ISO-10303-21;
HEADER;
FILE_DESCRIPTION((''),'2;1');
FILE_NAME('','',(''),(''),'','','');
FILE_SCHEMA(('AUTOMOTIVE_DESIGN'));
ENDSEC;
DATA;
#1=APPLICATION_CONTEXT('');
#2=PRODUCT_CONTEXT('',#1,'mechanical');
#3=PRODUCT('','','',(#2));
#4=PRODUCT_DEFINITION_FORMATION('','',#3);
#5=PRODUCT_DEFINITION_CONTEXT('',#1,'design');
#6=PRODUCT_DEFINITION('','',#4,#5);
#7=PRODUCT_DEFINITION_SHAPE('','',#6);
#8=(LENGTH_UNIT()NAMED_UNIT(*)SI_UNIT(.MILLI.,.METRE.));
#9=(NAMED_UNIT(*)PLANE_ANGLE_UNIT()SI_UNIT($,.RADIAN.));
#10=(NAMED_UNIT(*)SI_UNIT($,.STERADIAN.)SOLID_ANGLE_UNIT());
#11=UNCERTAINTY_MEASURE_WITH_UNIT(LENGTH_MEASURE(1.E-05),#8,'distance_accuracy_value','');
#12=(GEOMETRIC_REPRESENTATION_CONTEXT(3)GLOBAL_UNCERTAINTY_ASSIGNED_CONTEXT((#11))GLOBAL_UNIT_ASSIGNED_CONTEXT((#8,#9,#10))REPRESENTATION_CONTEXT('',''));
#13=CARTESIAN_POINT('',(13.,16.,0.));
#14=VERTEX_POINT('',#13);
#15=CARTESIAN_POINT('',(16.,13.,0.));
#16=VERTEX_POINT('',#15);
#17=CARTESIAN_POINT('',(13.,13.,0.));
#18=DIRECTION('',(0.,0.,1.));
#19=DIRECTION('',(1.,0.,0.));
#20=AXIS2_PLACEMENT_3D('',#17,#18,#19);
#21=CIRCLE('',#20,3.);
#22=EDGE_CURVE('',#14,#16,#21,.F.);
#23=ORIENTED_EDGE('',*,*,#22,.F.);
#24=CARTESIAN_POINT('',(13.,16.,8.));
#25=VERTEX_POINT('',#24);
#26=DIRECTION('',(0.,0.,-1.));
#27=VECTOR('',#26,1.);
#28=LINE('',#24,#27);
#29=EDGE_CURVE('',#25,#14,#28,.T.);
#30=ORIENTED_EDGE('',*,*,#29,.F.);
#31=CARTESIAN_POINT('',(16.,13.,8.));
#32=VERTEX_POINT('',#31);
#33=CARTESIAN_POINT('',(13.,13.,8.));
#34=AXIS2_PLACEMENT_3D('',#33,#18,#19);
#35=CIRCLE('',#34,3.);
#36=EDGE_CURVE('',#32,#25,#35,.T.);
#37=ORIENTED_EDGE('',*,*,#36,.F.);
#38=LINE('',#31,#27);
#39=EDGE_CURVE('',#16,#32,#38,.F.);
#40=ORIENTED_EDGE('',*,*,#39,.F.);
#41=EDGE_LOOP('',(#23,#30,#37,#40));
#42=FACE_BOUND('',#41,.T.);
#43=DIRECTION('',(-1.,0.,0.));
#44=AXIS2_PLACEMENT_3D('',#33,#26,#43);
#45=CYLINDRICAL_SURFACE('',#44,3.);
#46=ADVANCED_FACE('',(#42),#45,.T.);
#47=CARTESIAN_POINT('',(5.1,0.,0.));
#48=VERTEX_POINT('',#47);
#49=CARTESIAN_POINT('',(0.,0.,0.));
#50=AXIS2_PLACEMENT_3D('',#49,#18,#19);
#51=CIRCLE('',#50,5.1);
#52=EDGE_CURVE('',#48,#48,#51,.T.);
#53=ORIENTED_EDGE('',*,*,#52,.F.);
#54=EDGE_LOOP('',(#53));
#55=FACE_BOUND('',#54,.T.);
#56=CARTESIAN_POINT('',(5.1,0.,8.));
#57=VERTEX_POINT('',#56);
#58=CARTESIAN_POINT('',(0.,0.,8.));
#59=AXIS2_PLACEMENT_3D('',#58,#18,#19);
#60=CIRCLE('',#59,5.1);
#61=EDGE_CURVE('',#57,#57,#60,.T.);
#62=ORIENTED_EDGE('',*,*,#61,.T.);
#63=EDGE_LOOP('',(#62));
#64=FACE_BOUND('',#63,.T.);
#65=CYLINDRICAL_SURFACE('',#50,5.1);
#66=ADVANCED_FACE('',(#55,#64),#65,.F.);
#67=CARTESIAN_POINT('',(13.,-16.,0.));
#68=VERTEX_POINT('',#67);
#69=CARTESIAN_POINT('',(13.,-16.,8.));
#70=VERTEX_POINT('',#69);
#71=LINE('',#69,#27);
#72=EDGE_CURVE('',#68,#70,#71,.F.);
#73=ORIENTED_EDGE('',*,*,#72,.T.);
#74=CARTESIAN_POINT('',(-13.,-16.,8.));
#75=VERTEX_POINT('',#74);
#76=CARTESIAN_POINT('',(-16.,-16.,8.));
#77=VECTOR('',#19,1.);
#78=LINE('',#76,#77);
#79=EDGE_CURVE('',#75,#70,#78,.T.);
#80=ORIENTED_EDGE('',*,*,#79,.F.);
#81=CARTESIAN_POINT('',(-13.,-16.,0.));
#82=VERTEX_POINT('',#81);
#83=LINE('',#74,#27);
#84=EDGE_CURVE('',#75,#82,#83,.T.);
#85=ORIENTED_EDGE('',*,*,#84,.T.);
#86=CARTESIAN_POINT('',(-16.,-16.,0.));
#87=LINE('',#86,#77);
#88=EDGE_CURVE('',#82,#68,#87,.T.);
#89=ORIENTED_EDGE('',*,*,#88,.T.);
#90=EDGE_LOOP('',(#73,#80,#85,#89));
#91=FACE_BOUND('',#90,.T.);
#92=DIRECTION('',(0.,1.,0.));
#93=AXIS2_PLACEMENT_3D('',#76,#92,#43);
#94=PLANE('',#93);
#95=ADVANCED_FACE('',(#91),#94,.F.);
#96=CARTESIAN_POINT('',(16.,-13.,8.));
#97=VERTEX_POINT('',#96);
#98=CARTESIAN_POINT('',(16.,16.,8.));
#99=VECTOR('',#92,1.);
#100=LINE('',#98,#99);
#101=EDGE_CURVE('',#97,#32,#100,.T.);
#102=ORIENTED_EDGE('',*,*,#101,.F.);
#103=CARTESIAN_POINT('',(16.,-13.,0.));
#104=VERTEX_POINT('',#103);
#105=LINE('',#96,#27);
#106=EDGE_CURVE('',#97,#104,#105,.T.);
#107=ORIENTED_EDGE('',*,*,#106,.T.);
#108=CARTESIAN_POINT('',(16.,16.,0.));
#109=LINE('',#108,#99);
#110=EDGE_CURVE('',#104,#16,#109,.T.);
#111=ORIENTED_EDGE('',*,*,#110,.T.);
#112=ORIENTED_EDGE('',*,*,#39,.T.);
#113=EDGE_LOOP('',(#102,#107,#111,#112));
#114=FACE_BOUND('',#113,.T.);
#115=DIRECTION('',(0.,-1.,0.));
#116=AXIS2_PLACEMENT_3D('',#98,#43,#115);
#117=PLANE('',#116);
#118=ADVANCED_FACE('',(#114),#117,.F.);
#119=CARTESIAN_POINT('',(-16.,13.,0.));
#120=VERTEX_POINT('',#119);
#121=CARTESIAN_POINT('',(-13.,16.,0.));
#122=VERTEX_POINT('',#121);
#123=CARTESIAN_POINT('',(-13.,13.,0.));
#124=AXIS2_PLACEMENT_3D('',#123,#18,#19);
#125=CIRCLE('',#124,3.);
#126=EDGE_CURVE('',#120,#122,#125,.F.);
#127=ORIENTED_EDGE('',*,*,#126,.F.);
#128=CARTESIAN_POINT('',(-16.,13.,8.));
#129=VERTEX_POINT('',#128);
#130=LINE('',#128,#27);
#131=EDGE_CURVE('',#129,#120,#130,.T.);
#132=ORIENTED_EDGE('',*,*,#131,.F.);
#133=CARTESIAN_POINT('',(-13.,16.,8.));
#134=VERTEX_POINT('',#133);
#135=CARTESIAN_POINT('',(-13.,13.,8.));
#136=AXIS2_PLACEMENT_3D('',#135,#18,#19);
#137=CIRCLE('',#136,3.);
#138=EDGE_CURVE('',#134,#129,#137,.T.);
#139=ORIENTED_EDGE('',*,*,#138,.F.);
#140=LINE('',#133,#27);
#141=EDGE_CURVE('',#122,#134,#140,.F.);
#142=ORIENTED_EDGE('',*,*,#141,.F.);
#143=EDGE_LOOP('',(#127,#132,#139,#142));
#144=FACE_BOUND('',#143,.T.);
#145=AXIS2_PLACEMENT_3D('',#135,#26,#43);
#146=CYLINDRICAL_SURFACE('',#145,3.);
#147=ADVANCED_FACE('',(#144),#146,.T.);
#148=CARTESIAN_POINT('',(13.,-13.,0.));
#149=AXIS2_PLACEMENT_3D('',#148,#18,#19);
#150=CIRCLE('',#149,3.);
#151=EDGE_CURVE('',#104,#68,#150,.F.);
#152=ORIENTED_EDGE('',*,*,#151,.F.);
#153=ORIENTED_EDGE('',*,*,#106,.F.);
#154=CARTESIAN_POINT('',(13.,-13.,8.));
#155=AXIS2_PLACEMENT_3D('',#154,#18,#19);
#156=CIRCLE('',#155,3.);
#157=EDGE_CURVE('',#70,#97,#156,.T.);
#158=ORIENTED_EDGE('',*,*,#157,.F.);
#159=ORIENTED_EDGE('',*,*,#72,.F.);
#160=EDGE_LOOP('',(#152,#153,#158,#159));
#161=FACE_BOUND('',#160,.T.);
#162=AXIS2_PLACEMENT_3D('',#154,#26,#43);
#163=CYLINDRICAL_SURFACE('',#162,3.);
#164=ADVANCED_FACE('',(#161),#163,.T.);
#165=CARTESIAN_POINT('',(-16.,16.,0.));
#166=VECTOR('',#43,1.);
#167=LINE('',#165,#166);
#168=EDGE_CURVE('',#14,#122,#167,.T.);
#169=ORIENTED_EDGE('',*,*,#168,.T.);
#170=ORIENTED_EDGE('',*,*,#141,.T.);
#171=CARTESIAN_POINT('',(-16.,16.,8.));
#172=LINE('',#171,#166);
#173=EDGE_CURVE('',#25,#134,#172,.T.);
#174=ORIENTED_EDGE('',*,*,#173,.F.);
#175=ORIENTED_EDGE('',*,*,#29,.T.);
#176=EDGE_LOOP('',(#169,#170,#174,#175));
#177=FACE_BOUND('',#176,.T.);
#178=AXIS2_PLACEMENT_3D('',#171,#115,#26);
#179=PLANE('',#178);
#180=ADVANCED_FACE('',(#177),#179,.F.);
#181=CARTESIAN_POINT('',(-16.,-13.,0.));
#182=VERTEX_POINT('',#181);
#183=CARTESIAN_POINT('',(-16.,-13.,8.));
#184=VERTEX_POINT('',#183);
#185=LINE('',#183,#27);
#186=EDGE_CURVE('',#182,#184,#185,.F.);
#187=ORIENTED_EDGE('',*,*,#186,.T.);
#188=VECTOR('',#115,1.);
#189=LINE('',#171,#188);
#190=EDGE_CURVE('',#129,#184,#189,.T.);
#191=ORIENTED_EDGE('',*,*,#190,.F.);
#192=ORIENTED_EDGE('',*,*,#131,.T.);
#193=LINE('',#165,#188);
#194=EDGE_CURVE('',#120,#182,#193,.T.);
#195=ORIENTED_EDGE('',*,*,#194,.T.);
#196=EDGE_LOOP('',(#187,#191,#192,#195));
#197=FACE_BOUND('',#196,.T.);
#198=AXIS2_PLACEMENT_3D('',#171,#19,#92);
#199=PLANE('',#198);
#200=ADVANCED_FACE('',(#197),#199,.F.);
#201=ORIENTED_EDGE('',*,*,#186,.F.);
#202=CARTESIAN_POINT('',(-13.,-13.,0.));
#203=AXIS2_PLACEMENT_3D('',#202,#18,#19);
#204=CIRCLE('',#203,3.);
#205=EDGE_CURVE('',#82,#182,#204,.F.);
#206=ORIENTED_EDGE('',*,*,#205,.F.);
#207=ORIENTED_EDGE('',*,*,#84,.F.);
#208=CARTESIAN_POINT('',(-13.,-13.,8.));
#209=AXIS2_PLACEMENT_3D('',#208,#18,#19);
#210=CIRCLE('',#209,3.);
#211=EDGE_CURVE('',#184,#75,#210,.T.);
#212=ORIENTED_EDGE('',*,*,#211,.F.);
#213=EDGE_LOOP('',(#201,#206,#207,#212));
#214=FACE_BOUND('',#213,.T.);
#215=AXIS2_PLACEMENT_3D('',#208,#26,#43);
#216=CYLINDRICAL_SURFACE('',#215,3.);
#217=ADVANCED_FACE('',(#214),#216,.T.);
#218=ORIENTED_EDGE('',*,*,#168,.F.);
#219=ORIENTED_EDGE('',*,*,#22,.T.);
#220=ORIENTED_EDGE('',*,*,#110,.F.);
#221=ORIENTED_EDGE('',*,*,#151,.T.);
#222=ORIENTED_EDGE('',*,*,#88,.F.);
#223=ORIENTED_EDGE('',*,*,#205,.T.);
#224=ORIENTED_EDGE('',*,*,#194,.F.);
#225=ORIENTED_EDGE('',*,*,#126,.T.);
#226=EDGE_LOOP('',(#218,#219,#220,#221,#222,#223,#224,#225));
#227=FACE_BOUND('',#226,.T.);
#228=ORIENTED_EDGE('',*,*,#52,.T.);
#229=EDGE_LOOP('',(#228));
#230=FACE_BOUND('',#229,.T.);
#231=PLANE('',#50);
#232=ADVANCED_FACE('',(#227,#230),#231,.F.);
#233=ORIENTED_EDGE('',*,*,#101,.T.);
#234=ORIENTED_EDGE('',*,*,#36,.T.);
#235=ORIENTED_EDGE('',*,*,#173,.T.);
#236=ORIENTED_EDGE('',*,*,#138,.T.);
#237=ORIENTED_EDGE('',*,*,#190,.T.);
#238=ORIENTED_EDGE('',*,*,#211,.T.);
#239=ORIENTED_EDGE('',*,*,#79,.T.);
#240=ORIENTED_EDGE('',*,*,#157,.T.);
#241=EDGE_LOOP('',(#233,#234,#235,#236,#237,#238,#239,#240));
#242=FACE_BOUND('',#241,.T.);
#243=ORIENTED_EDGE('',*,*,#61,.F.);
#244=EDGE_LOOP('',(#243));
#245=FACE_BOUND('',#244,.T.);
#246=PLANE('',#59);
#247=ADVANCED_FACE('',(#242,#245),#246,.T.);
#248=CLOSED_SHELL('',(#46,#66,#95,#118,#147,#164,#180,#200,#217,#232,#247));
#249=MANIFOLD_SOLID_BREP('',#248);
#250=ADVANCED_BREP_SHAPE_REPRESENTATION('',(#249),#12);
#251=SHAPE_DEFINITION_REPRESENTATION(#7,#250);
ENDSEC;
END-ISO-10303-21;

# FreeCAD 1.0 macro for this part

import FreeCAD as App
import Part
import Sketcher

V = App.Vector
Q = App.Units.Quantity


def edges_at(feature, points):
    """Names of the edges that pass closest to the given points."""
    edges = feature.Shape.Edges
    near = lambda p: min(range(len(edges)), key=lambda i: edges[i].distToShape(Part.Vertex(*p))[0])
    return sorted({f"Edge{near(p) + 1}" for p in points})

doc = App.newDocument("Part")
params = doc.addObject("Spreadsheet::Sheet", "Params")
for row, (alias, value) in enumerate([
    ("sketch1_width", "32 mm"),
    ("pad1_length", "8 mm"),
    ("sketch2_diameter", "10.2 mm"),
    ("fillet_radius", "3 mm"),
], start=1):
    params.set(f"A{row}", alias)
    params.set(f"B{row}", "=" + value)
    params.setAlias(f"B{row}", alias)

body = doc.addObject("PartDesign::Body", "Body")

# Sketch on XY plane
sketch1 = doc.addObject("Sketcher::SketchObject", "Sketch")
body.addObject(sketch1)
sketch1.AttachmentSupport = (doc.XY_Plane, [""])
sketch1.MapMode = "FlatFace"
sketch1.addGeometry(Part.LineSegment(V(-16, 16, 0), V(-16, -16, 0)), False)
sketch1.addGeometry(Part.LineSegment(V(-16, -16, 0), V(16, -16, 0)), False)
sketch1.addGeometry(Part.LineSegment(V(16, -16, 0), V(16, 16, 0)), False)
sketch1.addGeometry(Part.LineSegment(V(16, 16, 0), V(-16, 16, 0)), False)
sketch1.addConstraint(Sketcher.Constraint("Coincident", 0, 2, 1, 1))
sketch1.addConstraint(Sketcher.Constraint("Coincident", 1, 2, 2, 1))
sketch1.addConstraint(Sketcher.Constraint("Coincident", 2, 2, 3, 1))
sketch1.addConstraint(Sketcher.Constraint("Coincident", 3, 2, 0, 1))
sketch1.addConstraint(Sketcher.Constraint("Vertical", 0))
sketch1.addConstraint(Sketcher.Constraint("Horizontal", 1))
sketch1.addConstraint(Sketcher.Constraint("Vertical", 2))
sketch1.addConstraint(Sketcher.Constraint("Horizontal", 3))
sketch1.addConstraint(Sketcher.Constraint("Symmetric", 0, 2, 2, 2, -1, 1))
sketch1.addConstraint(Sketcher.Constraint("Equal", 3, 0))
sketch1.addConstraint(Sketcher.Constraint("DistanceX", 1, 1, 1, 2, Q("32 mm")))
sketch1.setExpression("Constraints[10]", "Params.sketch1_width")
pad1 = doc.addObject("PartDesign::Pad", "Pad")
body.addObject(pad1)
pad1.Profile = sketch1
pad1.setExpression("Length", "Params.pad1_length")

# Sketch on XY plane
sketch2 = doc.addObject("Sketcher::SketchObject", "Sketch001")
body.addObject(sketch2)
sketch2.AttachmentSupport = (doc.XY_Plane, [""])
sketch2.MapMode = "FlatFace"
sketch2.AttachmentOffset = App.Placement(V(0, 0, 8), App.Rotation())
sketch2.addGeometry(Part.Circle(V(0, 0, 0), V(0, 0, 1), 5), False)
sketch2.addConstraint(Sketcher.Constraint("Coincident", 0, 3, -1, 1))
sketch2.addConstraint(Sketcher.Constraint("Diameter", 0, Q("10.2 mm")))
sketch2.setExpression("Constraints[1]", "Params.sketch2_diameter")
pocket1 = doc.addObject("PartDesign::Pocket", "Pocket")
body.addObject(pocket1)
pocket1.Profile = sketch2
pocket1.Type = "ThroughAll"
doc.recompute()

fillet = doc.addObject("PartDesign::Fillet", "Fillet")
body.addObject(fillet)
fillet.Base = (pocket1, edges_at(pocket1, [
    (16, -16, 4),
    (-16, -16, 4),
    (-16, 16, 4),
    (16, 16, 4),
]))
fillet.setExpression("Radius", "Params.fillet_radius")

doc.recompute()
